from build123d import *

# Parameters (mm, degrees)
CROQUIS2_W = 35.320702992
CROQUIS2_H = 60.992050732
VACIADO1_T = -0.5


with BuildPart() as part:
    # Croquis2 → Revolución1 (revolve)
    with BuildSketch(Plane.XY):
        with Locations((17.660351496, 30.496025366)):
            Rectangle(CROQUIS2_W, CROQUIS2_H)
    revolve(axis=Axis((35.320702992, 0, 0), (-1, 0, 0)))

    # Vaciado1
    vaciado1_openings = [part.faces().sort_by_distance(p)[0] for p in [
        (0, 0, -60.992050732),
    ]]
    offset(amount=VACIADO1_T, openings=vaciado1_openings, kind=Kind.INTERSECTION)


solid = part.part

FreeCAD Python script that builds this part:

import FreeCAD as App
import Part
import Sketcher
from FreeCAD import Vector
Q = App.Units.Quantity


def faces_at(feature, points):
    """Names of the faces that lie closest to the given points."""
    faces = feature.Shape.Faces
    near = lambda p: min(range(len(faces)), key=lambda i: faces[i].distToShape(Part.Vertex(*p))[0])
    return sorted({f"Face{near(p) + 1}" for p in points})


def add_polygon(sketch, points):
    """Adds a closed chain of lines whose ends are joined by coincident constraints."""
    first, n = sketch.GeometryCount, len(points)
    for a, b in zip(points, points[1:] + points[:1]):
        sketch.addGeometry(Part.LineSegment(App.Vector(*a, 0), App.Vector(*b, 0)), False)
    for i in range(n):
        sketch.addConstraint(Sketcher.Constraint("Coincident", first + i, 2, first + (i + 1) % n, 1))

doc = App.newDocument("Part")
body = doc.addObject("PartDesign::Body", "Body")

# Sketch on XY plane
sketch1 = doc.addObject("Sketcher::SketchObject", "Sketch")
body.addObject(sketch1)
sketch1.AttachmentSupport = (doc.XY_Plane, [""])
sketch1.MapMode = "FlatFace"
add_polygon(sketch1, [(0, 61), (0, 0), (35, 0), (35, 61)])  # lines 0-3
sketch1.addConstraint([
    Sketcher.Constraint("Vertical", 0),
    Sketcher.Constraint("Horizontal", 1),
    Sketcher.Constraint("Vertical", 2),
    Sketcher.Constraint("Horizontal", 3),
    Sketcher.Constraint("Coincident", 0, 2, -1, 1),
    Sketcher.Constraint("DistanceY", 0, 2, 0, 1, Q("60.992051 mm")),
    Sketcher.Constraint("DistanceX", 1, 1, 1, 2, Q("35.320703 mm")),
])
revolution = doc.addObject("PartDesign::Revolution", "Revolution")
body.addObject(revolution)
revolution.Profile = sketch1
revolution.ReferenceAxis = (sketch1, ["H_Axis"])
revolution.Angle = 360
doc.recompute()

thickness = doc.addObject("PartDesign::Thickness", "Thickness")
body.addObject(thickness)
thickness.Base = (revolution, faces_at(revolution, [(0, 0, 0)]))
thickness.Value = 0.5
thickness.Reversed = True
thickness.Join = "Intersection"

doc.recompute()
